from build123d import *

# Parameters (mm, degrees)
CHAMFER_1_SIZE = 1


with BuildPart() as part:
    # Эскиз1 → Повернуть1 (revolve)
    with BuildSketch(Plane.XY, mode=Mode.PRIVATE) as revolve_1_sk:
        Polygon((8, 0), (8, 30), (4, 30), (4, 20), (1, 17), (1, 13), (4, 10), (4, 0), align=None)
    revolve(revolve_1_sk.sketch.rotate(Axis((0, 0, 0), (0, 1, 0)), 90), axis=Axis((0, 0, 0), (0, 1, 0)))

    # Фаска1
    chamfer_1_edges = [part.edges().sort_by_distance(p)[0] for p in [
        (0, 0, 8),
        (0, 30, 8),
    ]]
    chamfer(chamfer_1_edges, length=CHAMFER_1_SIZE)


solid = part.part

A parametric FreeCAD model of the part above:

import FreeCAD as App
import Part
import Sketcher
from FreeCAD import Vector


def edges_at(feature, points):
    """Names of the edges that pass closest to the given points."""
    edges = feature.Shape.Edges
    near = lambda p: min(range(len(edges)), key=lambda i: edges[i].distToShape(Part.Vertex(*p))[0])
    return sorted({f"Edge{near(p) + 1}" for p in points})


def add_polygon(sketch, points):
    """Adds a closed chain of lines whose ends are joined by coincident constraints."""
    first, n = sketch.GeometryCount, len(points)
    for a, b in zip(points, points[1:] + points[:1]):
        sketch.addGeometry(Part.LineSegment(App.Vector(*a, 0), App.Vector(*b, 0)), False)
    for i in range(n):
        sketch.addConstraint(Sketcher.Constraint("Coincident", first + i, 2, first + (i + 1) % n, 1))

doc = App.newDocument("Part")
body = doc.addObject("PartDesign::Body", "Body")

# Sketch on XY plane
sketch1 = body.newObject("Sketcher::SketchObject", "Sketch")
sketch1.AttachmentSupport = (doc.getObject("XY_Plane"), [""])
sketch1.MapMode = "FlatFace"
add_polygon(sketch1, [(8, 0), (8, 30), (4, 30), (4, 20), (1, 17), (1, 13), (4, 10), (4, 0)])  # lines 0-7
sketch1.addConstraint([
    Sketcher.Constraint("Vertical", 0),
    Sketcher.Constraint("Horizontal", 1),
    Sketcher.Constraint("Vertical", 2),
    Sketcher.Constraint("Vertical", 4),
    Sketcher.Constraint("Vertical", 6),
    Sketcher.Constraint("Horizontal", 7),
    Sketcher.Constraint("PointOnObject", 6, 2, -1),
    Sketcher.Constraint("Perpendicular", 3, 5),
    Sketcher.Constraint("Vertical", 2, 2, 5, 2),
    Sketcher.Constraint("Equal", 7, 4),
    Sketcher.Constraint("Equal", 2, 6),
    Sketcher.Constraint("Equal", 3, 5),
    Sketcher.Constraint("DistanceX", 1, 2, 1, 1, 4.0),
    Sketcher.Constraint("DistanceY", 0, 1, 0, 2, 30.0),
    Sketcher.Constraint("DistanceY", 2, 2, 2, 1, 10.0),
    Sketcher.Constraint("DistanceX", -1, 1, 0, 2, 8.0),
])
revolution = body.newObject("PartDesign::Revolution", "Revolution")
revolution.Profile = sketch1
revolution.ReferenceAxis = (sketch1, ["V_Axis"])
revolution.Angle = 360
doc.recompute()

chamfer = body.newObject("PartDesign::Chamfer", "Chamfer")
chamfer.Base = (revolution, edges_at(revolution, [(0, 0, 8), (0, 30, 8)]))
chamfer.Size = 1

doc.recompute()
